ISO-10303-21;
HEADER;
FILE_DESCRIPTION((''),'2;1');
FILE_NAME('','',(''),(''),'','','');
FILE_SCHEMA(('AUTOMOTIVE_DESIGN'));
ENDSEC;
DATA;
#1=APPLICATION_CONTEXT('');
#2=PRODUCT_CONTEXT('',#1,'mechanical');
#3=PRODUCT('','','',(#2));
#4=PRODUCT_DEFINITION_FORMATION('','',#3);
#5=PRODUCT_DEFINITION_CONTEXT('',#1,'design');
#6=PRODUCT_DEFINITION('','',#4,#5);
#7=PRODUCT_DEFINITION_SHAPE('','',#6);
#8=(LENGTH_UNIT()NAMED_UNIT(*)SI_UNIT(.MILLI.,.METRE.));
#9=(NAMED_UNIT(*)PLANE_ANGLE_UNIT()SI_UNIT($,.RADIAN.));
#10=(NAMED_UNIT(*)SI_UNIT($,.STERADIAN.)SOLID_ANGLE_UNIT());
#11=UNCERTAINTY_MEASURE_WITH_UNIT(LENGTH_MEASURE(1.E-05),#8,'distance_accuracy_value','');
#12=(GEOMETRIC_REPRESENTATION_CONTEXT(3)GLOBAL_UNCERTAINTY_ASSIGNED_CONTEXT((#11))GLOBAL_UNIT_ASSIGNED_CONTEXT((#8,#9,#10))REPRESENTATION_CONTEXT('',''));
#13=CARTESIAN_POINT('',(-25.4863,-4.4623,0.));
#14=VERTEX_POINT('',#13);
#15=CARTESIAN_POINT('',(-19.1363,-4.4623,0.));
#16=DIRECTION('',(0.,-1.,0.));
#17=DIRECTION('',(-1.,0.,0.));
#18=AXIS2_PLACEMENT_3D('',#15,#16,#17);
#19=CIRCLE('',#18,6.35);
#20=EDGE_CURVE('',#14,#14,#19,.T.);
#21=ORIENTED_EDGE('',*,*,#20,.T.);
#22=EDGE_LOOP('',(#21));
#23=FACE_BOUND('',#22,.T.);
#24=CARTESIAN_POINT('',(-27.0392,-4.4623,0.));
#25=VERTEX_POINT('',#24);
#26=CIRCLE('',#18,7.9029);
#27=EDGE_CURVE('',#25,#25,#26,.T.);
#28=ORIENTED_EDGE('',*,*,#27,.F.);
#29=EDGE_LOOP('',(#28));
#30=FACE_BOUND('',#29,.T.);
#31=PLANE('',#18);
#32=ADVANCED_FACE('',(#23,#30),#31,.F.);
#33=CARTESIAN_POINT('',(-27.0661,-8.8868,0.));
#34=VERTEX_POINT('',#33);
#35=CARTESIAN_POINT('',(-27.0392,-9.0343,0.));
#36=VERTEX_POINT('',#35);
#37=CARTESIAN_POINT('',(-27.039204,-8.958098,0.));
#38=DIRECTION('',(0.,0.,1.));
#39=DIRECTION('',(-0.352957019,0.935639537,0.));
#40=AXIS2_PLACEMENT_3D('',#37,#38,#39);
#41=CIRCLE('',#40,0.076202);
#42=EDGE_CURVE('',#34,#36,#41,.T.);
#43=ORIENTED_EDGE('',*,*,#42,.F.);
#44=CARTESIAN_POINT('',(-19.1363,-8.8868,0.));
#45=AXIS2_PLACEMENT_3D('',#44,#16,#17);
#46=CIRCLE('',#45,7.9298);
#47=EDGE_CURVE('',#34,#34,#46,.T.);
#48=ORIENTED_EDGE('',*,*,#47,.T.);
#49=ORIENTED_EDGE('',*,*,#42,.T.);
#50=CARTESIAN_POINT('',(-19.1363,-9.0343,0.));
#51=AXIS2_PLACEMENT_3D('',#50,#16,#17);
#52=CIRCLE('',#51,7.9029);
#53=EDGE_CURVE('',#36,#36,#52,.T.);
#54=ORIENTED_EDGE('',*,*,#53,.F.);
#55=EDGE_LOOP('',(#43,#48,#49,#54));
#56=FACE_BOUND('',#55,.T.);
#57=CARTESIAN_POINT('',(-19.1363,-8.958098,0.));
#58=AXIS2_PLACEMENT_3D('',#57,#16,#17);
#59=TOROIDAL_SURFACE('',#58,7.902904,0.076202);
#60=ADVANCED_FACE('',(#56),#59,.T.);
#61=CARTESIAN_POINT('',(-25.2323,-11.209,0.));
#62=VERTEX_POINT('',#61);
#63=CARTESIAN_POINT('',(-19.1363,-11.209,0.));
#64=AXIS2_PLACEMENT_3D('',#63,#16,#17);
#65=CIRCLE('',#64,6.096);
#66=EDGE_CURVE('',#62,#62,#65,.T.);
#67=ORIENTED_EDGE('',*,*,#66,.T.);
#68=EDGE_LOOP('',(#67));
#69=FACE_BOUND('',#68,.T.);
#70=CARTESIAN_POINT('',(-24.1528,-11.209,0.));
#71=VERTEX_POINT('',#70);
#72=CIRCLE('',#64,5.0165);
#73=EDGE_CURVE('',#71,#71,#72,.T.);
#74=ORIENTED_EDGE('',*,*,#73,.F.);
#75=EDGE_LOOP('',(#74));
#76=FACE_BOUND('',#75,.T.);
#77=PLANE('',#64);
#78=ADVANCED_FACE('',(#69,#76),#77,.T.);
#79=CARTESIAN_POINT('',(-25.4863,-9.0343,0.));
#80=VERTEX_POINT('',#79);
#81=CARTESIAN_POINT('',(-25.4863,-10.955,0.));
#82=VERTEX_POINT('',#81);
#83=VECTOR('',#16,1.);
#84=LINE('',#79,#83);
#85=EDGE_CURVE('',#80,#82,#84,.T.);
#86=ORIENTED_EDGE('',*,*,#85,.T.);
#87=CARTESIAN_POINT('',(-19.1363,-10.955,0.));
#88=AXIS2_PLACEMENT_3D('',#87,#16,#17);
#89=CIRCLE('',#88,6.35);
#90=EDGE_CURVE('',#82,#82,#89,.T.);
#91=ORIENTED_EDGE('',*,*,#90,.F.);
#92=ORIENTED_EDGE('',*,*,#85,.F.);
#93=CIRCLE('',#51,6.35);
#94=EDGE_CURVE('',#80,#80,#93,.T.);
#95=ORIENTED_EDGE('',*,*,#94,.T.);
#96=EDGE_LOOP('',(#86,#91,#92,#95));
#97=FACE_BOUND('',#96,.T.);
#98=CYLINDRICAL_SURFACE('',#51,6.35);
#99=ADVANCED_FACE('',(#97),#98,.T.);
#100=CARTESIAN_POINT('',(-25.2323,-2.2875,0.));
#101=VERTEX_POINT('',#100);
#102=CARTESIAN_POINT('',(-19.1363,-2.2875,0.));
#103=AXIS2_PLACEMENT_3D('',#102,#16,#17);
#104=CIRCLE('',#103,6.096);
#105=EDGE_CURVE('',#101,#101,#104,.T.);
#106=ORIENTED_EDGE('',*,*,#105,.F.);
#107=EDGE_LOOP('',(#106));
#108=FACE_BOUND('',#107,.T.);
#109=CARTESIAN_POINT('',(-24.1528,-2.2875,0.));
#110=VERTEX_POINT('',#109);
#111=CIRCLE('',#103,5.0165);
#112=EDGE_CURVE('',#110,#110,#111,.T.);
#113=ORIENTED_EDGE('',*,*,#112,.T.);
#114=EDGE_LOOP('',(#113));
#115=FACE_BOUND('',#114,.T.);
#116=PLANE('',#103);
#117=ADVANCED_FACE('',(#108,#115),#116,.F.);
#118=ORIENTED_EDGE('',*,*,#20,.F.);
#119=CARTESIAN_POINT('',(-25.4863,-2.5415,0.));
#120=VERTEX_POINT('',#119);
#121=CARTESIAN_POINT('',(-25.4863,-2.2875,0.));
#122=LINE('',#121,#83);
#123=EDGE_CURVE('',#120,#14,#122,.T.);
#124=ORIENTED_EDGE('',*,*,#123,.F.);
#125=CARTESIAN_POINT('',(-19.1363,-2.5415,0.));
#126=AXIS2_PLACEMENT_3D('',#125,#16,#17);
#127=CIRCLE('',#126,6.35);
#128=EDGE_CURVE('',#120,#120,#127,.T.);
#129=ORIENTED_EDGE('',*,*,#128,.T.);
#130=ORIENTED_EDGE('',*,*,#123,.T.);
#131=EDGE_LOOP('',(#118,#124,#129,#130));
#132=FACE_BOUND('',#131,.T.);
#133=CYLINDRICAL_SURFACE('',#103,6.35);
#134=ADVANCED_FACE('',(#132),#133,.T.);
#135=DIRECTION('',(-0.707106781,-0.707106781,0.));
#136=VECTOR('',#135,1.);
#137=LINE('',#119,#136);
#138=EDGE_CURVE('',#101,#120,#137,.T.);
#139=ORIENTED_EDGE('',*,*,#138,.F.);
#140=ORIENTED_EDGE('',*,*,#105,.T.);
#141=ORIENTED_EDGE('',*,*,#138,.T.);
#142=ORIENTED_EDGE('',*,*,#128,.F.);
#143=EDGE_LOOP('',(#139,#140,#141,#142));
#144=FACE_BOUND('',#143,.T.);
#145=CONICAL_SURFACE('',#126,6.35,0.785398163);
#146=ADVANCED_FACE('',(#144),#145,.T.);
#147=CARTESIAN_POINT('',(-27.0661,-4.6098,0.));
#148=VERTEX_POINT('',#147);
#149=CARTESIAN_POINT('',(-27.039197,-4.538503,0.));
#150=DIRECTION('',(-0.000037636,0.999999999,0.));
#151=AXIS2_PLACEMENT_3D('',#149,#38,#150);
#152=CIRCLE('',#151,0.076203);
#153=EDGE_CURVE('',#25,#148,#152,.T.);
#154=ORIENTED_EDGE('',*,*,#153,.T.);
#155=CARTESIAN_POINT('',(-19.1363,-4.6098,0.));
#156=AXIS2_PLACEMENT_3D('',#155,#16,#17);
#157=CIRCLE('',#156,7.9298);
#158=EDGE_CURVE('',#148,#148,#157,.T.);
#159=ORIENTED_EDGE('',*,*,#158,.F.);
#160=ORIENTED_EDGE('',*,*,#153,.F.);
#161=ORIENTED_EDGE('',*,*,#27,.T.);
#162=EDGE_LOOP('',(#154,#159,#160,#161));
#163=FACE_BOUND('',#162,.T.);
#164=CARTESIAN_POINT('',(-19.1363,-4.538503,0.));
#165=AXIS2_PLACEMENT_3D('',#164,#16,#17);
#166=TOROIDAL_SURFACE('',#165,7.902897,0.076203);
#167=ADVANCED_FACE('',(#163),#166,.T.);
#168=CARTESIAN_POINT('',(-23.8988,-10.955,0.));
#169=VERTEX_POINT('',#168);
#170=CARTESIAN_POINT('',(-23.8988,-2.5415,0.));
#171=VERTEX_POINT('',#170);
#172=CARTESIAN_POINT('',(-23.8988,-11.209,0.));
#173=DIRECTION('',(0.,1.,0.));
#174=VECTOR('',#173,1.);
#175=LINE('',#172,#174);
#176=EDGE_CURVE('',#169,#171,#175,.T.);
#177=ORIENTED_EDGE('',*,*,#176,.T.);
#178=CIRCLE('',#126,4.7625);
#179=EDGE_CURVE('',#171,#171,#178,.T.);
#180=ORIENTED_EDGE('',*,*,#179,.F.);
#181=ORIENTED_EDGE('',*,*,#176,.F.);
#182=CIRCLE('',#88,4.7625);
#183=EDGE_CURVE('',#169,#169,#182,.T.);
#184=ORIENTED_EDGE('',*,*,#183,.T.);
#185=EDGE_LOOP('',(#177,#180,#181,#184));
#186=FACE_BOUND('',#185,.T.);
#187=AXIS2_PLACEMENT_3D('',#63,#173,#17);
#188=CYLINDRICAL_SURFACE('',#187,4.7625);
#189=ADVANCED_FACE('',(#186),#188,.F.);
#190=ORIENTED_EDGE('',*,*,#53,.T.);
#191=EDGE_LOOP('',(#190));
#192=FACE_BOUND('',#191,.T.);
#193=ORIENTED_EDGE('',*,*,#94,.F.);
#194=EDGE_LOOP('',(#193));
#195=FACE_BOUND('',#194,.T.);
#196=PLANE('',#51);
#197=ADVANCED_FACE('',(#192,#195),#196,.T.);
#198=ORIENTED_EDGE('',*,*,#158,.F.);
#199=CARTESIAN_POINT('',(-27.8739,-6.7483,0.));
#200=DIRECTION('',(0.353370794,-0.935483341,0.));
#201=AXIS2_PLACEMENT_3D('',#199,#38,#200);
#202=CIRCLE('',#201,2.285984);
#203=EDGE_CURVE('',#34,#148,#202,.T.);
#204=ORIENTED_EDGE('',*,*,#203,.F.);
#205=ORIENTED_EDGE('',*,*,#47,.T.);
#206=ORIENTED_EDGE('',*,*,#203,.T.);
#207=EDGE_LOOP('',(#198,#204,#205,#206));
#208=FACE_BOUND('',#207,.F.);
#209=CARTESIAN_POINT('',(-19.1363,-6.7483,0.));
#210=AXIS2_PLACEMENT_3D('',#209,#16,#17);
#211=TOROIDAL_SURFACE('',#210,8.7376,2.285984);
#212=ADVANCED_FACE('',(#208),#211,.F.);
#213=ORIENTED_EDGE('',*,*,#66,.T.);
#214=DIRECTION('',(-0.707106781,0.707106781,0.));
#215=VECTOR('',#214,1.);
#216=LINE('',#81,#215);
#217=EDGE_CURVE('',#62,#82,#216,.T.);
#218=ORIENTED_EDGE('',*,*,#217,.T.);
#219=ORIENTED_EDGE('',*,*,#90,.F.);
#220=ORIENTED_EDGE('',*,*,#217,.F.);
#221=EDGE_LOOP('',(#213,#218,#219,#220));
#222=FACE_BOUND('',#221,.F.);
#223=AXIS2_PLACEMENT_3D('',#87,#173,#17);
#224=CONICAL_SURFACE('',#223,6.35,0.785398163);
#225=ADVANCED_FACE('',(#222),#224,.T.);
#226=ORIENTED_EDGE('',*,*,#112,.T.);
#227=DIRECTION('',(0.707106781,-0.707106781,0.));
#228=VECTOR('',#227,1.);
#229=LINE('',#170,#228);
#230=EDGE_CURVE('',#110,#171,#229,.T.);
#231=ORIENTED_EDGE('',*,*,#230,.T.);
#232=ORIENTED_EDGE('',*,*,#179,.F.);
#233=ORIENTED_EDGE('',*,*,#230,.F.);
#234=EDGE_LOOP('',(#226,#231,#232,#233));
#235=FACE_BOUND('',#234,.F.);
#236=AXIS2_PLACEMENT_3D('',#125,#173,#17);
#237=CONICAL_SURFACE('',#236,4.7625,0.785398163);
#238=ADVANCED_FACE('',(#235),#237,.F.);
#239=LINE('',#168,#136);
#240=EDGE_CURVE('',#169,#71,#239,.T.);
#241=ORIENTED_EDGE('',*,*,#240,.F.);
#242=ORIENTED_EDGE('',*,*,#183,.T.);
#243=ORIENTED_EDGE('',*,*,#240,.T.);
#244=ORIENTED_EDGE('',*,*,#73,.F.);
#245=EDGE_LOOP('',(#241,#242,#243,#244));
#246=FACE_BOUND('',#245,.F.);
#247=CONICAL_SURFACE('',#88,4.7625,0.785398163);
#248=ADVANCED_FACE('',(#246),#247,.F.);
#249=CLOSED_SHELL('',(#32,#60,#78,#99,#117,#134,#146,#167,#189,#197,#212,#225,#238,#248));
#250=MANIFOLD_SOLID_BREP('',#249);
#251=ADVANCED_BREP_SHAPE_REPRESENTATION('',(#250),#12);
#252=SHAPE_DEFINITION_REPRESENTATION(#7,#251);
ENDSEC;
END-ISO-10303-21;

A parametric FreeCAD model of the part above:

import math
import FreeCAD as App
import Part
import Sketcher

V = App.Vector
Q = App.Units.Quantity


def edges_at(feature, points):
    """Names of the edges that pass closest to the given points."""
    edges = feature.Shape.Edges
    near = lambda p: min(range(len(edges)), key=lambda i: edges[i].distToShape(Part.Vertex(*p))[0])
    return sorted({f"Edge{near(p) + 1}" for p in points})

doc = App.newDocument("Part")
params = doc.addObject("Spreadsheet::Sheet", "Params")
for row, (alias, value) in enumerate([
    ("sketch1_radius", "0.09 in"),
    ("sketch1_radius2", "0.003 in"),
    ("sketch1_width", "0.0625 in"),
    ("revolution_angle", "360 deg"),
    ("chamfer_size", "0.01 in"),
    ("chamfer2_size", "0.01 in"),
], start=1):
    params.set(f"A{row}", alias)
    params.set(f"B{row}", "=" + value)
    params.setAlias(f"B{row}", alias)

body = doc.addObject("PartDesign::Body", "Body")

# Sketch on XY plane
sketch1 = body.newObject("Sketcher::SketchObject", "Sketch")
sketch1.AttachmentSupport = (doc.getObject("XY_Plane"), [""])
sketch1.MapMode = "FlatFace"
sketch1.addGeometry([
    Part.LineSegment(V(-23.9, -2.29, 0), V(-25.49, -2.29, 0)),  # 0
    Part.LineSegment(V(-25.49, -2.29, 0), V(-25.49, -4.46, 0)),  # 1
    Part.LineSegment(V(-25.49, -4.46, 0), V(-27.04, -4.46, 0)),  # 2
    Part.ArcOfCircle(Part.Circle(V(-27.04, -4.54, 0), V(0, 0, 1), 0.08), math.radians(90), math.radians(249)),  # 3
    Part.ArcOfCircle(Part.Circle(V(-27.87, -6.75, 0), V(0, 0, 1), 2.29), math.radians(-69), math.radians(69)),  # 4
    Part.ArcOfCircle(Part.Circle(V(-27.04, -8.96, 0), V(0, 0, 1), 0.08), math.radians(111), math.radians(270)),  # 5
    Part.LineSegment(V(-27.04, -9.03, 0), V(-25.49, -9.03, 0)),  # 6
    Part.LineSegment(V(-25.49, -9.03, 0), V(-25.49, -11.21, 0)),  # 7
    Part.LineSegment(V(-25.49, -11.21, 0), V(-23.9, -11.21, 0)),  # 8
    Part.LineSegment(V(-23.9, -11.21, 0), V(-23.9, -2.29, 0)),  # 9
], False)
sketch1.addGeometry(Part.LineSegment(V(-19.14, -2.29, 0), V(-19.14, -11.21, 0)), True)  # axis
sketch1.addConstraint([
    Sketcher.Constraint("Coincident", 0, 2, 1, 1),
    Sketcher.Constraint("Coincident", 1, 2, 2, 1),
    Sketcher.Constraint("Tangent", 2, 2, 3, 1),
    Sketcher.Constraint("Tangent", 3, 2, 4, 2),
    Sketcher.Constraint("Tangent", 4, 1, 5, 1),
    Sketcher.Constraint("Tangent", 5, 2, 6, 1),
    Sketcher.Constraint("Coincident", 6, 2, 7, 1),
    Sketcher.Constraint("Coincident", 7, 2, 8, 1),
    Sketcher.Constraint("Coincident", 8, 2, 9, 1),
    Sketcher.Constraint("Coincident", 9, 2, 0, 1),
    Sketcher.Constraint("Horizontal", 0),
    Sketcher.Constraint("Vertical", 1),
    Sketcher.Constraint("Horizontal", 2),
    Sketcher.Constraint("Horizontal", 6),
    Sketcher.Constraint("Vertical", 7),
    Sketcher.Constraint("Horizontal", 8),
    Sketcher.Constraint("Vertical", 9),
    Sketcher.Constraint("Vertical", 10),
    Sketcher.Constraint("Equal", 3, 5),
    Sketcher.Constraint("Horizontal", 9, 2, 10, 1),
    Sketcher.Constraint("Horizontal", 8, 2, 10, 2),
    Sketcher.Constraint("Vertical", 3, 3, 5, 3),
    Sketcher.Constraint("Vertical", 1, 2, 6, 2),
    Sketcher.Constraint("Equal", 1, 7),
    Sketcher.Constraint("Radius", 4, Q("0.09 in")),
    Sketcher.Constraint("Radius", 3, Q("0.003 in")),
    Sketcher.Constraint("DistanceX", 0, 2, 0, 1, Q("0.0625 in")),
    Sketcher.Constraint("DistanceY", 6, 2, 1, 2, Q("0.18 in")),
    Sketcher.Constraint("DistanceX", 9, 2, 10, 1, Q("0.1875 in")),
    Sketcher.Constraint("DistanceY", 1, 2, 1, 1, Q("2.1748 mm")),
    Sketcher.Constraint("DistanceX", 5, 2, 8, 2, Q("3.1404 mm")),
    Sketcher.Constraint("DistanceX", 4, 3, -1, 1, Q("1.0974 in")),
    Sketcher.Constraint("DistanceY", 7, 2, -1, 1, Q("0.4413 in")),
])
sketch1.setExpression("Constraints[24]", "Params.sketch1_radius")
sketch1.setExpression("Constraints[25]", "Params.sketch1_radius2")
sketch1.setExpression("Constraints[26]", "Params.sketch1_width")
revolution = body.newObject("PartDesign::Revolution", "Revolution")
revolution.Profile = sketch1
revolution.ReferenceAxis = (sketch1, ["Axis0"])
revolution.setExpression("Angle", "Params.revolution_angle")
doc.recompute()

chamfer = body.newObject("PartDesign::Chamfer", "Chamfer")
chamfer.Base = (revolution, edges_at(revolution, [(-12.786, -2.288, 0)]))
chamfer.setExpression("Size", "Params.chamfer_size")
doc.recompute()

chamfer2 = body.newObject("PartDesign::Chamfer", "Chamfer001")
chamfer2.Base = (chamfer, edges_at(chamfer, [(-14.374, -2.288, 0), (-12.786, -11.209, 0), (-14.374, -11.209, 0)]))
chamfer2.setExpression("Size", "Params.chamfer2_size")

doc.recompute()
